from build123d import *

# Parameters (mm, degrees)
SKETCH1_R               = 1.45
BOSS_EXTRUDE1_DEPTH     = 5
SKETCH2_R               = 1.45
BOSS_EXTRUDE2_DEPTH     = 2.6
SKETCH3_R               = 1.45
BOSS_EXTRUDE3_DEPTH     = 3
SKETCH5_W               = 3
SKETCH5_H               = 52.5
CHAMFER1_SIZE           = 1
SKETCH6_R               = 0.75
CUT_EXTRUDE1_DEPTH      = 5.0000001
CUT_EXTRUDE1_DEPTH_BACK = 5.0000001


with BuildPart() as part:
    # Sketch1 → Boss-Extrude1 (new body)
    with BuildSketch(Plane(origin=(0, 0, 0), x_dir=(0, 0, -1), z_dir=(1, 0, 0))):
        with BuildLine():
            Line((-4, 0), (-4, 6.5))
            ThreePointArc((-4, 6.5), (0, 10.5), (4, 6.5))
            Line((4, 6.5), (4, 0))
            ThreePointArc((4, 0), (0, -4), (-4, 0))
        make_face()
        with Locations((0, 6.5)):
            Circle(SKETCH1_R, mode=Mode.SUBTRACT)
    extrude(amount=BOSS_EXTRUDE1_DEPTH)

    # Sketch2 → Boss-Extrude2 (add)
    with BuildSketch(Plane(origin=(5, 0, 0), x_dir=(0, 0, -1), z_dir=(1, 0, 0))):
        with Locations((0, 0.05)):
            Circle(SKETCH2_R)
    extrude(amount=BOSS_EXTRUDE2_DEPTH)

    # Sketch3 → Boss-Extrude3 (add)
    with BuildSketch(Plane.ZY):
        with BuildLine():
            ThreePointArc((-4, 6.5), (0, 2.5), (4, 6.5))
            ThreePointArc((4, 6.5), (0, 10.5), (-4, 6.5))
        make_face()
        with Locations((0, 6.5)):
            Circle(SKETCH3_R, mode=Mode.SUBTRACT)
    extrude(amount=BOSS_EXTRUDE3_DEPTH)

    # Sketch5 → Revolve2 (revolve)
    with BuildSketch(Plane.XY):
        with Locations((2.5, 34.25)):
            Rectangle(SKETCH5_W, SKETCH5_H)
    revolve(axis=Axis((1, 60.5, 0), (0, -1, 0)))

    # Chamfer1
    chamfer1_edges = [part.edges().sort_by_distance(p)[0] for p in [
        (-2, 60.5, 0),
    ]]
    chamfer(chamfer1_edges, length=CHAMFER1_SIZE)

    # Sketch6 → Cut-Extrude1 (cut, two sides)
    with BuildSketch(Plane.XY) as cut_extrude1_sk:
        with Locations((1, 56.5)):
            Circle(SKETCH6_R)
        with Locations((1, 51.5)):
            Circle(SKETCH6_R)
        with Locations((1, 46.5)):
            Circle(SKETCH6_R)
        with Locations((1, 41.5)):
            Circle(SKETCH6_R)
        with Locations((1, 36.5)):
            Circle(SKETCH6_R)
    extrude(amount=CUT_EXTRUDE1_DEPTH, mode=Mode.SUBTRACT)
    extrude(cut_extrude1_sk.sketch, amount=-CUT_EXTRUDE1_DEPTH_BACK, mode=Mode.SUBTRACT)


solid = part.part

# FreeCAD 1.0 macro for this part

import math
import FreeCAD as App
import Part
import Sketcher
Q = App.Units.Quantity


def edges_at(feature, points):
    """Names of the edges that pass closest to the given points."""
    edges = feature.Shape.Edges
    near = lambda p: min(range(len(edges)), key=lambda i: edges[i].distToShape(Part.Vertex(*p))[0])
    return sorted({f"Edge{near(p) + 1}" for p in points})


def add_polygon(sketch, points):
    """Adds a closed chain of lines whose ends are joined by coincident constraints."""
    first, n = sketch.GeometryCount, len(points)
    for a, b in zip(points, points[1:] + points[:1]):
        sketch.addGeometry(Part.LineSegment(App.Vector(*a, 0), App.Vector(*b, 0)), False)
    for i in range(n):
        sketch.addConstraint(Sketcher.Constraint("Coincident", first + i, 2, first + (i + 1) % n, 1))

doc = App.newDocument("Part")
body = doc.addObject("PartDesign::Body", "Body")

# Sketch on YZ plane
sketch1 = body.newObject("Sketcher::SketchObject", "Sketch")
sketch1.AttachmentSupport = (doc.getObject("YZ_Plane"), [""])
sketch1.MapMode = "FlatFace"
sketch1.addGeometry(Part.LineSegment(App.Vector(6.5, 4, 0), App.Vector(0, 4, 0)), False)
sketch1.addGeometry(Part.ArcOfCircle(Part.Circle(App.Vector(0, 0, 0), App.Vector(0, 0, 1), 4), math.radians(90), math.radians(270)), False)
sketch1.addGeometry(Part.LineSegment(App.Vector(0, -4, 0), App.Vector(6.5, -4, 0)), False)
sketch1.addGeometry(Part.ArcOfCircle(Part.Circle(App.Vector(6.5, 0, 0), App.Vector(0, 0, 1), 4), math.radians(-90), math.radians(90)), False)
sketch1.addGeometry(Part.Circle(App.Vector(6.5, 0, 0), App.Vector(0, 0, 1), 1.4), False)
sketch1.addConstraint(Sketcher.Constraint("Tangent", 0, 2, 1, 1))
sketch1.addConstraint(Sketcher.Constraint("Tangent", 1, 2, 2, 1))
sketch1.addConstraint(Sketcher.Constraint("Tangent", 2, 2, 3, 1))
sketch1.addConstraint(Sketcher.Constraint("Tangent", 3, 2, 0, 1))
sketch1.addConstraint(Sketcher.Constraint("Horizontal", 0))
sketch1.addConstraint(Sketcher.Constraint("Horizontal", 2))
sketch1.addConstraint(Sketcher.Constraint("Coincident", 1, 3, -1, 1))
sketch1.addConstraint(Sketcher.Constraint("Coincident", 4, 3, 3, 3))
sketch1.addConstraint(Sketcher.Constraint("Radius", 1, Q("4 mm")))
sketch1.addConstraint(Sketcher.Constraint("Diameter", 4, Q("2.9 mm")))
sketch1.addConstraint(Sketcher.Constraint("DistanceX", 0, 2, 0, 1, Q("6.5 mm")))
pad1 = body.newObject("PartDesign::Pad", "Pad")
pad1.Profile = sketch1
pad1.Length = 5

# Sketch on YZ plane
sketch2 = body.newObject("Sketcher::SketchObject", "Sketch001")
sketch2.AttachmentSupport = (doc.getObject("YZ_Plane"), [""])
sketch2.MapMode = "FlatFace"
sketch2.AttachmentOffset = App.Placement(App.Vector(0, 0, 5), App.Rotation())
sketch2.addGeometry(Part.Circle(App.Vector(0.1, 0, 0), App.Vector(0, 0, 1), 1.4), False)
sketch2.addConstraint(Sketcher.Constraint("PointOnObject", 0, 3, -1))
sketch2.addConstraint(Sketcher.Constraint("Diameter", 0, Q("2.9 mm")))
sketch2.addConstraint(Sketcher.Constraint("DistanceX", -1, 1, 0, 3, Q("0.05 mm")))
pad2 = body.newObject("PartDesign::Pad", "Pad001")
pad2.Profile = sketch2
pad2.Length = 2.6

# Sketch on YZ plane
sketch3 = body.newObject("Sketcher::SketchObject", "Sketch002")
sketch3.AttachmentSupport = (doc.getObject("YZ_Plane"), [""])
sketch3.MapMode = "FlatFace"
sketch3.addGeometry(Part.Circle(App.Vector(6.5, 0, 0), App.Vector(0, 0, 1), 4), False)
sketch3.addGeometry(Part.Circle(App.Vector(6.5, 0, 0), App.Vector(0, 0, 1), 1.4), False)
sketch3.addConstraint(Sketcher.Constraint("Coincident", 1, 3, 0, 3))
sketch3.addConstraint(Sketcher.Constraint("PointOnObject", 0, 3, -1))
sketch3.addConstraint(Sketcher.Constraint("Diameter", 0, Q("8 mm")))
sketch3.addConstraint(Sketcher.Constraint("Diameter", 1, Q("2.9 mm")))
sketch3.addConstraint(Sketcher.Constraint("DistanceX", -1, 1, 0, 3, Q("6.5 mm")))
pad3 = body.newObject("PartDesign::Pad", "Pad002")
pad3.Profile = sketch3
pad3.Length = 3
pad3.Reversed = True

# Sketch on XY plane
sketch4 = body.newObject("Sketcher::SketchObject", "Sketch003")
sketch4.AttachmentSupport = (doc.getObject("XY_Plane"), [""])
sketch4.MapMode = "FlatFace"
add_polygon(sketch4, [(1, 60.5), (1, 8), (4, 8), (4, 60.5)])  # lines 0-3
sketch4.addGeometry(Part.LineSegment(App.Vector(1, 60.5, 0), App.Vector(1, 8, 0)), True)  # axis
sketch4.addConstraint(Sketcher.Constraint("Vertical", 0))
sketch4.addConstraint(Sketcher.Constraint("Horizontal", 1))
sketch4.addConstraint(Sketcher.Constraint("Vertical", 2))
sketch4.addConstraint(Sketcher.Constraint("Horizontal", 3))
sketch4.addConstraint(Sketcher.Constraint("Vertical", 4))
sketch4.addConstraint(Sketcher.Constraint("Coincident", 4, 1, 3, 2))
sketch4.addConstraint(Sketcher.Constraint("Horizontal", 1, 2, 4, 2))
sketch4.addConstraint(Sketcher.Constraint("DistanceX", 1, 1, 1, 2, Q("3 mm")))
sketch4.addConstraint(Sketcher.Constraint("DistanceY", 0, 2, 0, 1, Q("52.5 mm")))
sketch4.addConstraint(Sketcher.Constraint("DistanceX", -1, 1, 0, 2, Q("1 mm")))
sketch4.addConstraint(Sketcher.Constraint("DistanceY", -1, 1, 0, 2, Q("8 mm")))
revolution = body.newObject("PartDesign::Revolution", "Revolution")
revolution.Profile = sketch4
revolution.ReferenceAxis = (sketch4, ["Axis0"])
revolution.Angle = 360
doc.recompute()

chamfer = body.newObject("PartDesign::Chamfer", "Chamfer")
chamfer.Base = (revolution, edges_at(revolution, [(-2, 60.5, 0)]))
chamfer.Size = 1

# Sketch on XY plane
sketch5 = body.newObject("Sketcher::SketchObject", "Sketch004")
sketch5.AttachmentSupport = (doc.getObject("XY_Plane"), [""])
sketch5.MapMode = "FlatFace"
sketch5.addGeometry(Part.Circle(App.Vector(1, 56.5, 0), App.Vector(0, 0, 1), 0.8), False)
sketch5.addGeometry(Part.Circle(App.Vector(1, 51.5, 0), App.Vector(0, 0, 1), 0.8), False)
sketch5.addGeometry(Part.Circle(App.Vector(1, 46.5, 0), App.Vector(0, 0, 1), 0.8), False)
sketch5.addGeometry(Part.Circle(App.Vector(1, 41.5, 0), App.Vector(0, 0, 1), 0.8), False)
sketch5.addGeometry(Part.Circle(App.Vector(1, 36.5, 0), App.Vector(0, 0, 1), 0.8), False)
sketch5.addConstraint(Sketcher.Constraint("Equal", 0, 1))
sketch5.addConstraint(Sketcher.Constraint("Equal", 1, 2))
sketch5.addConstraint(Sketcher.Constraint("Equal", 2, 3))
sketch5.addConstraint(Sketcher.Constraint("Equal", 3, 4))
sketch5.addConstraint(Sketcher.Constraint("Vertical", 0, 3, 1, 3))
sketch5.addConstraint(Sketcher.Constraint("Vertical", 1, 3, 2, 3))
sketch5.addConstraint(Sketcher.Constraint("Vertical", 2, 3, 3, 3))
sketch5.addConstraint(Sketcher.Constraint("Vertical", 3, 3, 4, 3))
sketch5.addConstraint(Sketcher.Constraint("Diameter", 0, Q("1.5 mm")))
sketch5.addConstraint(Sketcher.Constraint("DistanceX", -1, 1, 0, 3, Q("1 mm")))
sketch5.addConstraint(Sketcher.Constraint("DistanceY", 1, 3, 0, 3, Q("5 mm")))
sketch5.addConstraint(Sketcher.Constraint("DistanceY", 2, 3, 1, 3, Q("5 mm")))
sketch5.addConstraint(Sketcher.Constraint("DistanceY", 3, 3, 2, 3, Q("5 mm")))
sketch5.addConstraint(Sketcher.Constraint("DistanceY", 4, 3, 3, 3, Q("5 mm")))
sketch5.addConstraint(Sketcher.Constraint("DistanceY", -1, 1, 0, 3, Q("56.5 mm")))
pocket1 = body.newObject("PartDesign::Pocket", "Pocket")
pocket1.Profile = sketch5
pocket1.Type = "ThroughAll"
pocket1.Midplane = True

doc.recompute()
